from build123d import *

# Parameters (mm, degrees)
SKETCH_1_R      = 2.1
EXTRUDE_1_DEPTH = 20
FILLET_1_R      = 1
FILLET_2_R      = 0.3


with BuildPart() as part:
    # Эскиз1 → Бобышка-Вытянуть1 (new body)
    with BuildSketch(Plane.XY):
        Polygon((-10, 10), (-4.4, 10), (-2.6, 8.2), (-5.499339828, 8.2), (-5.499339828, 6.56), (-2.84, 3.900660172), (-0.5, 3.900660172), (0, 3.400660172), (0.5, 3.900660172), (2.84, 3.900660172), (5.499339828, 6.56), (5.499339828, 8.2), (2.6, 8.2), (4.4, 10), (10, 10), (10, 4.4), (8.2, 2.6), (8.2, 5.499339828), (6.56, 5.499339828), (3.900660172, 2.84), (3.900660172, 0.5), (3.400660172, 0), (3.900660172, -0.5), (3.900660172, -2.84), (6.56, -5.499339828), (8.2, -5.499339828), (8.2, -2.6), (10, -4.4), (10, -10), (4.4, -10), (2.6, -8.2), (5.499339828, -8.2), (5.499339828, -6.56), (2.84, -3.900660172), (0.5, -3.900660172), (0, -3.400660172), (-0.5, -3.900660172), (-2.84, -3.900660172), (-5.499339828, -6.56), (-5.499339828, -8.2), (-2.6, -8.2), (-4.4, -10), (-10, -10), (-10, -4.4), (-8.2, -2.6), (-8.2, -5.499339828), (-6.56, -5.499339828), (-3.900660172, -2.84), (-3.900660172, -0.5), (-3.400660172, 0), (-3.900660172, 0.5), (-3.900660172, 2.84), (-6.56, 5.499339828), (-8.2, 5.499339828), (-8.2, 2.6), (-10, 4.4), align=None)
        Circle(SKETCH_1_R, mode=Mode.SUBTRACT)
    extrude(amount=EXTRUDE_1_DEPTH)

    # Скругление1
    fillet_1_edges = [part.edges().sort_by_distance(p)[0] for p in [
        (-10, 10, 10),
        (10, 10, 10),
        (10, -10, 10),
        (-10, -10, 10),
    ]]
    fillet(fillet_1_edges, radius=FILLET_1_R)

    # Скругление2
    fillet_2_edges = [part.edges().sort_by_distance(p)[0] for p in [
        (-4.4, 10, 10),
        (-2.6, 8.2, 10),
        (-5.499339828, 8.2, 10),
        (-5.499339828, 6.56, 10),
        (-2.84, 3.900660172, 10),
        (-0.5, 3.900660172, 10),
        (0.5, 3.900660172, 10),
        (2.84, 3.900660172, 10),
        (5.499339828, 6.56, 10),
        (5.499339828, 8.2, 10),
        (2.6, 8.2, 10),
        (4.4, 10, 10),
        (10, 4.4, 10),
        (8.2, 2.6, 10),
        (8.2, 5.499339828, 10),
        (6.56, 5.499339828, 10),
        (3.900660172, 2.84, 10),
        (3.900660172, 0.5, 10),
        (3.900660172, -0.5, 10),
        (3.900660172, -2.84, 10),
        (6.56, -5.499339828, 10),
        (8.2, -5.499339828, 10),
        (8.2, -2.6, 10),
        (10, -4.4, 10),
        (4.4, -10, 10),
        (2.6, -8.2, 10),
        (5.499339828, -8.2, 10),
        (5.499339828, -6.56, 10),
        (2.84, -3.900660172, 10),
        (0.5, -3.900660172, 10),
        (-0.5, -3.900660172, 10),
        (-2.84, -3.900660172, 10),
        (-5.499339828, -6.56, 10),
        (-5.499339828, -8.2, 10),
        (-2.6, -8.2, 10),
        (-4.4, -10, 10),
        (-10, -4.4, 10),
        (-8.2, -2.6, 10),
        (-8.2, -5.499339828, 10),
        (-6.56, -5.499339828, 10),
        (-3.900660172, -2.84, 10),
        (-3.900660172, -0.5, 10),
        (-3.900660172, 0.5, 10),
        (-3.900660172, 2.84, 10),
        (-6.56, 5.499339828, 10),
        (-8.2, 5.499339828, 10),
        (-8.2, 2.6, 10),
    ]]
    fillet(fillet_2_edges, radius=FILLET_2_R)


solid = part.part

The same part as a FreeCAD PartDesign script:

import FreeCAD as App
import Part
import Sketcher

V = App.Vector
Q = App.Units.Quantity


def edges_at(feature, points):
    """Names of the edges that pass closest to the given points."""
    edges = feature.Shape.Edges
    near = lambda p: min(range(len(edges)), key=lambda i: edges[i].distToShape(Part.Vertex(*p))[0])
    return sorted({f"Edge{near(p) + 1}" for p in points})

doc = App.newDocument("Part")
body = doc.addObject("PartDesign::Body", "Body")

# Sketch on XY plane
sketch1 = doc.addObject("Sketcher::SketchObject", "Sketch")
body.addObject(sketch1)
sketch1.AttachmentSupport = (doc.XY_Plane, [""])
sketch1.MapMode = "FlatFace"
sketch1.addGeometry([
    Part.LineSegment(V(-4.4, 10, 0), V(-10, 10, 0)),  # 0
    Part.LineSegment(V(-10, 10, 0), V(-10, 4.4, 0)),  # 1
    Part.LineSegment(V(-10, 4.4, 0), V(-8.2, 2.6, 0)),  # 2
    Part.LineSegment(V(-8.2, 2.6, 0), V(-8.2, 5.49934, 0)),  # 3
    Part.LineSegment(V(-8.2, 5.49934, 0), V(-6.56, 5.49934, 0)),  # 4
    Part.LineSegment(V(-6.56, 5.49934, 0), V(-3.90066, 2.84, 0)),  # 5
    Part.LineSegment(V(-3.90066, 2.84, 0), V(-3.90066, 0.5, 0)),  # 6
    Part.LineSegment(V(-3.90066, 0.5, 0), V(-3.40066, 0, 0)),  # 7
    Part.LineSegment(V(-3.40066, 0, 0), V(-3.90066, -0.5, 0)),  # 8
    Part.LineSegment(V(-3.90066, -0.5, 0), V(-3.90066, -2.84, 0)),  # 9
    Part.LineSegment(V(-3.90066, -2.84, 0), V(-6.56, -5.49934, 0)),  # 10
    Part.LineSegment(V(-6.56, -5.49934, 0), V(-8.2, -5.49934, 0)),  # 11
    Part.LineSegment(V(-8.2, -5.49934, 0), V(-8.2, -2.6, 0)),  # 12
    Part.LineSegment(V(-8.2, -2.6, 0), V(-10, -4.4, 0)),  # 13
    Part.LineSegment(V(-10, -4.4, 0), V(-10, -10, 0)),  # 14
    Part.LineSegment(V(-10, -10, 0), V(-4.4, -10, 0)),  # 15
    Part.LineSegment(V(-4.4, -10, 0), V(-2.6, -8.2, 0)),  # 16
    Part.LineSegment(V(-2.6, -8.2, 0), V(-5.49934, -8.2, 0)),  # 17
    Part.LineSegment(V(-5.49934, -8.2, 0), V(-5.49934, -6.56, 0)),  # 18
    Part.LineSegment(V(-5.49934, -6.56, 0), V(-2.84, -3.90066, 0)),  # 19
    Part.LineSegment(V(-2.84, -3.90066, 0), V(-0.5, -3.90066, 0)),  # 20
    Part.LineSegment(V(-0.5, -3.90066, 0), V(0, -3.40066, 0)),  # 21
    Part.LineSegment(V(0, -3.40066, 0), V(0.5, -3.90066, 0)),  # 22
    Part.LineSegment(V(0.5, -3.90066, 0), V(2.84, -3.90066, 0)),  # 23
    Part.LineSegment(V(2.84, -3.90066, 0), V(5.49934, -6.56, 0)),  # 24
    Part.LineSegment(V(5.49934, -6.56, 0), V(5.49934, -8.2, 0)),  # 25
    Part.LineSegment(V(5.49934, -8.2, 0), V(2.6, -8.2, 0)),  # 26
    Part.LineSegment(V(2.6, -8.2, 0), V(4.4, -10, 0)),  # 27
    Part.LineSegment(V(4.4, -10, 0), V(10, -10, 0)),  # 28
    Part.LineSegment(V(10, -10, 0), V(10, -4.4, 0)),  # 29
    Part.LineSegment(V(10, -4.4, 0), V(8.2, -2.6, 0)),  # 30
    Part.LineSegment(V(8.2, -2.6, 0), V(8.2, -5.49934, 0)),  # 31
    Part.LineSegment(V(8.2, -5.49934, 0), V(6.56, -5.49934, 0)),  # 32
    Part.LineSegment(V(6.56, -5.49934, 0), V(3.90066, -2.84, 0)),  # 33
    Part.LineSegment(V(3.90066, -2.84, 0), V(3.90066, -0.5, 0)),  # 34
    Part.LineSegment(V(3.90066, -0.5, 0), V(3.40066, 0, 0)),  # 35
    Part.LineSegment(V(3.40066, 0, 0), V(3.90066, 0.5, 0)),  # 36
    Part.LineSegment(V(3.90066, 0.5, 0), V(3.90066, 2.84, 0)),  # 37
    Part.LineSegment(V(3.90066, 2.84, 0), V(6.56, 5.49934, 0)),  # 38
    Part.LineSegment(V(6.56, 5.49934, 0), V(8.2, 5.49934, 0)),  # 39
    Part.LineSegment(V(8.2, 5.49934, 0), V(8.2, 2.6, 0)),  # 40
    Part.LineSegment(V(8.2, 2.6, 0), V(10, 4.4, 0)),  # 41
    Part.LineSegment(V(10, 4.4, 0), V(10, 10, 0)),  # 42
    Part.LineSegment(V(10, 10, 0), V(4.4, 10, 0)),  # 43
    Part.LineSegment(V(4.4, 10, 0), V(2.6, 8.2, 0)),  # 44
    Part.LineSegment(V(2.6, 8.2, 0), V(5.49934, 8.2, 0)),  # 45
    Part.LineSegment(V(5.49934, 8.2, 0), V(5.49934, 6.56, 0)),  # 46
    Part.LineSegment(V(5.49934, 6.56, 0), V(2.84, 3.90066, 0)),  # 47
    Part.LineSegment(V(2.84, 3.90066, 0), V(0.5, 3.90066, 0)),  # 48
    Part.LineSegment(V(0.5, 3.90066, 0), V(0, 3.40066, 0)),  # 49
    Part.LineSegment(V(0, 3.40066, 0), V(-0.5, 3.90066, 0)),  # 50
    Part.LineSegment(V(-0.5, 3.90066, 0), V(-2.84, 3.90066, 0)),  # 51
    Part.LineSegment(V(-2.84, 3.90066, 0), V(-5.49934, 6.56, 0)),  # 52
    Part.LineSegment(V(-5.49934, 6.56, 0), V(-5.49934, 8.2, 0)),  # 53
    Part.LineSegment(V(-5.49934, 8.2, 0), V(-2.6, 8.2, 0)),  # 54
    Part.LineSegment(V(-2.6, 8.2, 0), V(-4.4, 10, 0)),  # 55
    Part.Circle(V(0, 0, 0), V(0, 0, 1), 2.1),  # 56
], False)
sketch1.addConstraint([
    Sketcher.Constraint("Coincident", 0, 2, 1, 1),
    Sketcher.Constraint("Coincident", 1, 2, 2, 1),
    Sketcher.Constraint("Coincident", 2, 2, 3, 1),
    Sketcher.Constraint("Coincident", 3, 2, 4, 1),
    Sketcher.Constraint("Coincident", 4, 2, 5, 1),
    Sketcher.Constraint("Coincident", 5, 2, 6, 1),
    Sketcher.Constraint("Coincident", 6, 2, 7, 1),
    Sketcher.Constraint("Coincident", 7, 2, 8, 1),
    Sketcher.Constraint("Coincident", 8, 2, 9, 1),
    Sketcher.Constraint("Coincident", 9, 2, 10, 1),
    Sketcher.Constraint("Coincident", 10, 2, 11, 1),
    Sketcher.Constraint("Coincident", 11, 2, 12, 1),
    Sketcher.Constraint("Coincident", 12, 2, 13, 1),
    Sketcher.Constraint("Coincident", 13, 2, 14, 1),
    Sketcher.Constraint("Coincident", 14, 2, 15, 1),
    Sketcher.Constraint("Coincident", 15, 2, 16, 1),
    Sketcher.Constraint("Coincident", 16, 2, 17, 1),
    Sketcher.Constraint("Coincident", 17, 2, 18, 1),
    Sketcher.Constraint("Coincident", 18, 2, 19, 1),
    Sketcher.Constraint("Coincident", 19, 2, 20, 1),
    Sketcher.Constraint("Coincident", 20, 2, 21, 1),
    Sketcher.Constraint("Coincident", 21, 2, 22, 1),
    Sketcher.Constraint("Coincident", 22, 2, 23, 1),
    Sketcher.Constraint("Coincident", 23, 2, 24, 1),
    Sketcher.Constraint("Coincident", 24, 2, 25, 1),
    Sketcher.Constraint("Coincident", 25, 2, 26, 1),
    Sketcher.Constraint("Coincident", 26, 2, 27, 1),
    Sketcher.Constraint("Coincident", 27, 2, 28, 1),
    Sketcher.Constraint("Coincident", 28, 2, 29, 1),
    Sketcher.Constraint("Coincident", 29, 2, 30, 1),
    Sketcher.Constraint("Coincident", 30, 2, 31, 1),
    Sketcher.Constraint("Coincident", 31, 2, 32, 1),
    Sketcher.Constraint("Coincident", 32, 2, 33, 1),
    Sketcher.Constraint("Coincident", 33, 2, 34, 1),
    Sketcher.Constraint("Coincident", 34, 2, 35, 1),
    Sketcher.Constraint("Coincident", 35, 2, 36, 1),
    Sketcher.Constraint("Coincident", 36, 2, 37, 1),
    Sketcher.Constraint("Coincident", 37, 2, 38, 1),
    Sketcher.Constraint("Coincident", 38, 2, 39, 1),
    Sketcher.Constraint("Coincident", 39, 2, 40, 1),
    Sketcher.Constraint("Coincident", 40, 2, 41, 1),
    Sketcher.Constraint("Coincident", 41, 2, 42, 1),
    Sketcher.Constraint("Coincident", 42, 2, 43, 1),
    Sketcher.Constraint("Coincident", 43, 2, 44, 1),
    Sketcher.Constraint("Coincident", 44, 2, 45, 1),
    Sketcher.Constraint("Coincident", 45, 2, 46, 1),
    Sketcher.Constraint("Coincident", 46, 2, 47, 1),
    Sketcher.Constraint("Coincident", 47, 2, 48, 1),
    Sketcher.Constraint("Coincident", 48, 2, 49, 1),
    Sketcher.Constraint("Coincident", 49, 2, 50, 1),
    Sketcher.Constraint("Coincident", 50, 2, 51, 1),
    Sketcher.Constraint("Coincident", 51, 2, 52, 1),
    Sketcher.Constraint("Coincident", 52, 2, 53, 1),
    Sketcher.Constraint("Coincident", 53, 2, 54, 1),
    Sketcher.Constraint("Coincident", 54, 2, 55, 1),
    Sketcher.Constraint("Coincident", 55, 2, 0, 1),
    Sketcher.Constraint("Horizontal", 0),
    Sketcher.Constraint("Vertical", 1),
    Sketcher.Constraint("Vertical", 3),
    Sketcher.Constraint("Horizontal", 4),
    Sketcher.Constraint("Vertical", 6),
    Sketcher.Constraint("Vertical", 9),
    Sketcher.Constraint("Horizontal", 11),
    Sketcher.Constraint("Vertical", 12),
    Sketcher.Constraint("Vertical", 14),
    Sketcher.Constraint("Horizontal", 15),
    Sketcher.Constraint("Horizontal", 17),
    Sketcher.Constraint("Vertical", 18),
    Sketcher.Constraint("Horizontal", 20),
    Sketcher.Constraint("Horizontal", 23),
    Sketcher.Constraint("Vertical", 25),
    Sketcher.Constraint("Horizontal", 26),
    Sketcher.Constraint("Horizontal", 28),
    Sketcher.Constraint("Vertical", 29),
    Sketcher.Constraint("Vertical", 31),
    Sketcher.Constraint("Horizontal", 32),
    Sketcher.Constraint("Vertical", 34),
    Sketcher.Constraint("Vertical", 37),
    Sketcher.Constraint("Horizontal", 39),
    Sketcher.Constraint("Vertical", 40),
    Sketcher.Constraint("Vertical", 42),
    Sketcher.Constraint("Horizontal", 43),
    Sketcher.Constraint("Horizontal", 45),
    Sketcher.Constraint("Vertical", 46),
    Sketcher.Constraint("Horizontal", 48),
    Sketcher.Constraint("Horizontal", 51),
    Sketcher.Constraint("Vertical", 53),
    Sketcher.Constraint("Horizontal", 54),
    Sketcher.Constraint("Coincident", 56, 3, -1, 1),
    Sketcher.Constraint("Symmetric", 0, 2, 28, 2, -1, 1),
    Sketcher.Constraint("Symmetric", 2, 2, 30, 2, -1, 1),
    Sketcher.Constraint("Symmetric", 4, 2, 32, 2, -1, 1),
    Sketcher.Constraint("Symmetric", 5, 2, 33, 2, -1, 1),
    Sketcher.Constraint("Symmetric", 7, 2, 35, 2, -1, 1),
    Sketcher.Constraint("Symmetric", 8, 2, 36, 2, -1, 1),
    Sketcher.Constraint("Symmetric", 10, 2, 38, 2, -1, 1),
    Sketcher.Constraint("Symmetric", 12, 2, 40, 2, -1, 1),
    Sketcher.Constraint("Symmetric", 13, 2, 41, 2, -1, 1),
    Sketcher.Constraint("Symmetric", 15, 2, 43, 2, -1, 1),
    Sketcher.Constraint("Symmetric", 16, 2, 44, 2, -1, 1),
    Sketcher.Constraint("Symmetric", 18, 2, 46, 2, -1, 1),
    Sketcher.Constraint("Symmetric", 19, 2, 47, 2, -1, 1),
    Sketcher.Constraint("Symmetric", 21, 2, 49, 2, -1, 1),
    Sketcher.Constraint("Symmetric", 22, 2, 50, 2, -1, 1),
    Sketcher.Constraint("Symmetric", 24, 2, 52, 2, -1, 1),
    Sketcher.Constraint("Symmetric", 26, 2, 54, 2, -1, 1),
    Sketcher.Constraint("Symmetric", 20, 2, 22, 2, -2),
    Sketcher.Constraint("Symmetric", 18, 2, 24, 2, -2),
    Sketcher.Constraint("Symmetric", 16, 2, 26, 2, -2),
    Sketcher.Constraint("Symmetric", 15, 2, 27, 2, -2),
    Sketcher.Constraint("Symmetric", 13, 2, 29, 2, -2),
    Sketcher.Constraint("Symmetric", 12, 2, 30, 2, -2),
    Sketcher.Constraint("Symmetric", 10, 2, 32, 2, -2),
    Sketcher.Constraint("Symmetric", 9, 2, 33, 2, -2),
    Sketcher.Constraint("PointOnObject", 7, 2, -1),
    Sketcher.Constraint("PointOnObject", 21, 2, -2),
    Sketcher.Constraint("Parallel", 2, 5),
    Sketcher.Constraint("Parallel", 5, 7),
    Sketcher.Constraint("Perpendicular", 7, 8),
    Sketcher.Constraint("Parallel", 8, 10),
    Sketcher.Constraint("Parallel", 10, 13),
    Sketcher.Constraint("Parallel", 13, 16),
    Sketcher.Constraint("Parallel", 16, 19),
    Sketcher.Constraint("Parallel", 19, 21),
    Sketcher.Constraint("Parallel", 22, 24),
    Sketcher.Constraint("Parallel", 33, 35),
    Sketcher.Constraint("Parallel", 36, 38),
    Sketcher.Constraint("Parallel", 47, 49),
    Sketcher.Constraint("Parallel", 50, 52),
    Sketcher.Constraint("Parallel", 52, 55),
    Sketcher.Constraint("Equal", 43, 1),
    Sketcher.Constraint("Equal", 54, 3),
    Sketcher.Constraint("Equal", 51, 6),
    Sketcher.Constraint("Equal", 39, 18),
    Sketcher.Constraint("Equal", 13, 16),
    Sketcher.Constraint("Equal", 10, 19),
    Sketcher.Constraint("Equal", 8, 21),
    Sketcher.Constraint("Diameter", 56, Q("4.2 mm")),
    Sketcher.Constraint("DistanceX", 0, 2, 0, 1, Q("5.6 mm")),
    Sketcher.Constraint("DistanceX", 0, 2, -1, 1, Q("10 mm")),
    Sketcher.Constraint("DistanceY", 8, 2, 6, 2, Q("1 mm")),
    Sketcher.Constraint("DistanceY", 13, 2, 2, 2, Q("7 mm")),
    Sketcher.Constraint("DistanceX", 4, 1, 4, 2, Q("1.64 mm")),
    Sketcher.Constraint("DistanceX", 20, 1, 20, 2, Q("2.34 mm")),
    Sketcher.Constraint("DistanceX", 17, 2, 17, 1, Q("2.89934 mm")),
])
pad1 = doc.addObject("PartDesign::Pad", "Pad")
body.addObject(pad1)
pad1.Profile = sketch1
pad1.Length = 20
doc.recompute()

fillet = doc.addObject("PartDesign::Fillet", "Fillet")
body.addObject(fillet)
fillet.Base = (pad1, edges_at(pad1, [
    (-10, 10, 10),
    (10, 10, 10),
    (10, -10, 10),
    (-10, -10, 10),
]))
fillet.Radius = 1
doc.recompute()

fillet2 = doc.addObject("PartDesign::Fillet", "Fillet001")
body.addObject(fillet2)
fillet2.Base = (fillet, edges_at(fillet, [
    (-4.4, 10, 10),
    (-2.6, 8.2, 10),
    (-5.499, 8.2, 10),
    (-5.499, 6.56, 10),
    (-2.84, 3.901, 10),
    (-0.5, 3.901, 10),
    (0.5, 3.901, 10),
    (2.84, 3.901, 10),
    (5.499, 6.56, 10),
    (5.499, 8.2, 10),
    (2.6, 8.2, 10),
    (4.4, 10, 10),
    (10, 4.4, 10),
    (8.2, 2.6, 10),
    (8.2, 5.499, 10),
    (6.56, 5.499, 10),
    (3.901, 2.84, 10),
    (3.901, 0.5, 10),
    (3.901, -0.5, 10),
    (3.901, -2.84, 10),
    (6.56, -5.499, 10),
    (8.2, -5.499, 10),
    (8.2, -2.6, 10),
    (10, -4.4, 10),
    (4.4, -10, 10),
    (2.6, -8.2, 10),
    (5.499, -8.2, 10),
    (5.499, -6.56, 10),
    (2.84, -3.901, 10),
    (0.5, -3.901, 10),
    (-0.5, -3.901, 10),
    (-2.84, -3.901, 10),
    (-5.499, -6.56, 10),
    (-5.499, -8.2, 10),
    (-2.6, -8.2, 10),
    (-4.4, -10, 10),
    (-10, -4.4, 10),
    (-8.2, -2.6, 10),
    (-8.2, -5.499, 10),
    (-6.56, -5.499, 10),
    (-3.901, -2.84, 10),
    (-3.901, -0.5, 10),
    (-3.901, 0.5, 10),
    (-3.901, 2.84, 10),
    (-6.56, 5.499, 10),
    (-8.2, 5.499, 10),
    (-8.2, 2.6, 10),
]))
fillet2.Radius = 0.3

doc.recompute()
